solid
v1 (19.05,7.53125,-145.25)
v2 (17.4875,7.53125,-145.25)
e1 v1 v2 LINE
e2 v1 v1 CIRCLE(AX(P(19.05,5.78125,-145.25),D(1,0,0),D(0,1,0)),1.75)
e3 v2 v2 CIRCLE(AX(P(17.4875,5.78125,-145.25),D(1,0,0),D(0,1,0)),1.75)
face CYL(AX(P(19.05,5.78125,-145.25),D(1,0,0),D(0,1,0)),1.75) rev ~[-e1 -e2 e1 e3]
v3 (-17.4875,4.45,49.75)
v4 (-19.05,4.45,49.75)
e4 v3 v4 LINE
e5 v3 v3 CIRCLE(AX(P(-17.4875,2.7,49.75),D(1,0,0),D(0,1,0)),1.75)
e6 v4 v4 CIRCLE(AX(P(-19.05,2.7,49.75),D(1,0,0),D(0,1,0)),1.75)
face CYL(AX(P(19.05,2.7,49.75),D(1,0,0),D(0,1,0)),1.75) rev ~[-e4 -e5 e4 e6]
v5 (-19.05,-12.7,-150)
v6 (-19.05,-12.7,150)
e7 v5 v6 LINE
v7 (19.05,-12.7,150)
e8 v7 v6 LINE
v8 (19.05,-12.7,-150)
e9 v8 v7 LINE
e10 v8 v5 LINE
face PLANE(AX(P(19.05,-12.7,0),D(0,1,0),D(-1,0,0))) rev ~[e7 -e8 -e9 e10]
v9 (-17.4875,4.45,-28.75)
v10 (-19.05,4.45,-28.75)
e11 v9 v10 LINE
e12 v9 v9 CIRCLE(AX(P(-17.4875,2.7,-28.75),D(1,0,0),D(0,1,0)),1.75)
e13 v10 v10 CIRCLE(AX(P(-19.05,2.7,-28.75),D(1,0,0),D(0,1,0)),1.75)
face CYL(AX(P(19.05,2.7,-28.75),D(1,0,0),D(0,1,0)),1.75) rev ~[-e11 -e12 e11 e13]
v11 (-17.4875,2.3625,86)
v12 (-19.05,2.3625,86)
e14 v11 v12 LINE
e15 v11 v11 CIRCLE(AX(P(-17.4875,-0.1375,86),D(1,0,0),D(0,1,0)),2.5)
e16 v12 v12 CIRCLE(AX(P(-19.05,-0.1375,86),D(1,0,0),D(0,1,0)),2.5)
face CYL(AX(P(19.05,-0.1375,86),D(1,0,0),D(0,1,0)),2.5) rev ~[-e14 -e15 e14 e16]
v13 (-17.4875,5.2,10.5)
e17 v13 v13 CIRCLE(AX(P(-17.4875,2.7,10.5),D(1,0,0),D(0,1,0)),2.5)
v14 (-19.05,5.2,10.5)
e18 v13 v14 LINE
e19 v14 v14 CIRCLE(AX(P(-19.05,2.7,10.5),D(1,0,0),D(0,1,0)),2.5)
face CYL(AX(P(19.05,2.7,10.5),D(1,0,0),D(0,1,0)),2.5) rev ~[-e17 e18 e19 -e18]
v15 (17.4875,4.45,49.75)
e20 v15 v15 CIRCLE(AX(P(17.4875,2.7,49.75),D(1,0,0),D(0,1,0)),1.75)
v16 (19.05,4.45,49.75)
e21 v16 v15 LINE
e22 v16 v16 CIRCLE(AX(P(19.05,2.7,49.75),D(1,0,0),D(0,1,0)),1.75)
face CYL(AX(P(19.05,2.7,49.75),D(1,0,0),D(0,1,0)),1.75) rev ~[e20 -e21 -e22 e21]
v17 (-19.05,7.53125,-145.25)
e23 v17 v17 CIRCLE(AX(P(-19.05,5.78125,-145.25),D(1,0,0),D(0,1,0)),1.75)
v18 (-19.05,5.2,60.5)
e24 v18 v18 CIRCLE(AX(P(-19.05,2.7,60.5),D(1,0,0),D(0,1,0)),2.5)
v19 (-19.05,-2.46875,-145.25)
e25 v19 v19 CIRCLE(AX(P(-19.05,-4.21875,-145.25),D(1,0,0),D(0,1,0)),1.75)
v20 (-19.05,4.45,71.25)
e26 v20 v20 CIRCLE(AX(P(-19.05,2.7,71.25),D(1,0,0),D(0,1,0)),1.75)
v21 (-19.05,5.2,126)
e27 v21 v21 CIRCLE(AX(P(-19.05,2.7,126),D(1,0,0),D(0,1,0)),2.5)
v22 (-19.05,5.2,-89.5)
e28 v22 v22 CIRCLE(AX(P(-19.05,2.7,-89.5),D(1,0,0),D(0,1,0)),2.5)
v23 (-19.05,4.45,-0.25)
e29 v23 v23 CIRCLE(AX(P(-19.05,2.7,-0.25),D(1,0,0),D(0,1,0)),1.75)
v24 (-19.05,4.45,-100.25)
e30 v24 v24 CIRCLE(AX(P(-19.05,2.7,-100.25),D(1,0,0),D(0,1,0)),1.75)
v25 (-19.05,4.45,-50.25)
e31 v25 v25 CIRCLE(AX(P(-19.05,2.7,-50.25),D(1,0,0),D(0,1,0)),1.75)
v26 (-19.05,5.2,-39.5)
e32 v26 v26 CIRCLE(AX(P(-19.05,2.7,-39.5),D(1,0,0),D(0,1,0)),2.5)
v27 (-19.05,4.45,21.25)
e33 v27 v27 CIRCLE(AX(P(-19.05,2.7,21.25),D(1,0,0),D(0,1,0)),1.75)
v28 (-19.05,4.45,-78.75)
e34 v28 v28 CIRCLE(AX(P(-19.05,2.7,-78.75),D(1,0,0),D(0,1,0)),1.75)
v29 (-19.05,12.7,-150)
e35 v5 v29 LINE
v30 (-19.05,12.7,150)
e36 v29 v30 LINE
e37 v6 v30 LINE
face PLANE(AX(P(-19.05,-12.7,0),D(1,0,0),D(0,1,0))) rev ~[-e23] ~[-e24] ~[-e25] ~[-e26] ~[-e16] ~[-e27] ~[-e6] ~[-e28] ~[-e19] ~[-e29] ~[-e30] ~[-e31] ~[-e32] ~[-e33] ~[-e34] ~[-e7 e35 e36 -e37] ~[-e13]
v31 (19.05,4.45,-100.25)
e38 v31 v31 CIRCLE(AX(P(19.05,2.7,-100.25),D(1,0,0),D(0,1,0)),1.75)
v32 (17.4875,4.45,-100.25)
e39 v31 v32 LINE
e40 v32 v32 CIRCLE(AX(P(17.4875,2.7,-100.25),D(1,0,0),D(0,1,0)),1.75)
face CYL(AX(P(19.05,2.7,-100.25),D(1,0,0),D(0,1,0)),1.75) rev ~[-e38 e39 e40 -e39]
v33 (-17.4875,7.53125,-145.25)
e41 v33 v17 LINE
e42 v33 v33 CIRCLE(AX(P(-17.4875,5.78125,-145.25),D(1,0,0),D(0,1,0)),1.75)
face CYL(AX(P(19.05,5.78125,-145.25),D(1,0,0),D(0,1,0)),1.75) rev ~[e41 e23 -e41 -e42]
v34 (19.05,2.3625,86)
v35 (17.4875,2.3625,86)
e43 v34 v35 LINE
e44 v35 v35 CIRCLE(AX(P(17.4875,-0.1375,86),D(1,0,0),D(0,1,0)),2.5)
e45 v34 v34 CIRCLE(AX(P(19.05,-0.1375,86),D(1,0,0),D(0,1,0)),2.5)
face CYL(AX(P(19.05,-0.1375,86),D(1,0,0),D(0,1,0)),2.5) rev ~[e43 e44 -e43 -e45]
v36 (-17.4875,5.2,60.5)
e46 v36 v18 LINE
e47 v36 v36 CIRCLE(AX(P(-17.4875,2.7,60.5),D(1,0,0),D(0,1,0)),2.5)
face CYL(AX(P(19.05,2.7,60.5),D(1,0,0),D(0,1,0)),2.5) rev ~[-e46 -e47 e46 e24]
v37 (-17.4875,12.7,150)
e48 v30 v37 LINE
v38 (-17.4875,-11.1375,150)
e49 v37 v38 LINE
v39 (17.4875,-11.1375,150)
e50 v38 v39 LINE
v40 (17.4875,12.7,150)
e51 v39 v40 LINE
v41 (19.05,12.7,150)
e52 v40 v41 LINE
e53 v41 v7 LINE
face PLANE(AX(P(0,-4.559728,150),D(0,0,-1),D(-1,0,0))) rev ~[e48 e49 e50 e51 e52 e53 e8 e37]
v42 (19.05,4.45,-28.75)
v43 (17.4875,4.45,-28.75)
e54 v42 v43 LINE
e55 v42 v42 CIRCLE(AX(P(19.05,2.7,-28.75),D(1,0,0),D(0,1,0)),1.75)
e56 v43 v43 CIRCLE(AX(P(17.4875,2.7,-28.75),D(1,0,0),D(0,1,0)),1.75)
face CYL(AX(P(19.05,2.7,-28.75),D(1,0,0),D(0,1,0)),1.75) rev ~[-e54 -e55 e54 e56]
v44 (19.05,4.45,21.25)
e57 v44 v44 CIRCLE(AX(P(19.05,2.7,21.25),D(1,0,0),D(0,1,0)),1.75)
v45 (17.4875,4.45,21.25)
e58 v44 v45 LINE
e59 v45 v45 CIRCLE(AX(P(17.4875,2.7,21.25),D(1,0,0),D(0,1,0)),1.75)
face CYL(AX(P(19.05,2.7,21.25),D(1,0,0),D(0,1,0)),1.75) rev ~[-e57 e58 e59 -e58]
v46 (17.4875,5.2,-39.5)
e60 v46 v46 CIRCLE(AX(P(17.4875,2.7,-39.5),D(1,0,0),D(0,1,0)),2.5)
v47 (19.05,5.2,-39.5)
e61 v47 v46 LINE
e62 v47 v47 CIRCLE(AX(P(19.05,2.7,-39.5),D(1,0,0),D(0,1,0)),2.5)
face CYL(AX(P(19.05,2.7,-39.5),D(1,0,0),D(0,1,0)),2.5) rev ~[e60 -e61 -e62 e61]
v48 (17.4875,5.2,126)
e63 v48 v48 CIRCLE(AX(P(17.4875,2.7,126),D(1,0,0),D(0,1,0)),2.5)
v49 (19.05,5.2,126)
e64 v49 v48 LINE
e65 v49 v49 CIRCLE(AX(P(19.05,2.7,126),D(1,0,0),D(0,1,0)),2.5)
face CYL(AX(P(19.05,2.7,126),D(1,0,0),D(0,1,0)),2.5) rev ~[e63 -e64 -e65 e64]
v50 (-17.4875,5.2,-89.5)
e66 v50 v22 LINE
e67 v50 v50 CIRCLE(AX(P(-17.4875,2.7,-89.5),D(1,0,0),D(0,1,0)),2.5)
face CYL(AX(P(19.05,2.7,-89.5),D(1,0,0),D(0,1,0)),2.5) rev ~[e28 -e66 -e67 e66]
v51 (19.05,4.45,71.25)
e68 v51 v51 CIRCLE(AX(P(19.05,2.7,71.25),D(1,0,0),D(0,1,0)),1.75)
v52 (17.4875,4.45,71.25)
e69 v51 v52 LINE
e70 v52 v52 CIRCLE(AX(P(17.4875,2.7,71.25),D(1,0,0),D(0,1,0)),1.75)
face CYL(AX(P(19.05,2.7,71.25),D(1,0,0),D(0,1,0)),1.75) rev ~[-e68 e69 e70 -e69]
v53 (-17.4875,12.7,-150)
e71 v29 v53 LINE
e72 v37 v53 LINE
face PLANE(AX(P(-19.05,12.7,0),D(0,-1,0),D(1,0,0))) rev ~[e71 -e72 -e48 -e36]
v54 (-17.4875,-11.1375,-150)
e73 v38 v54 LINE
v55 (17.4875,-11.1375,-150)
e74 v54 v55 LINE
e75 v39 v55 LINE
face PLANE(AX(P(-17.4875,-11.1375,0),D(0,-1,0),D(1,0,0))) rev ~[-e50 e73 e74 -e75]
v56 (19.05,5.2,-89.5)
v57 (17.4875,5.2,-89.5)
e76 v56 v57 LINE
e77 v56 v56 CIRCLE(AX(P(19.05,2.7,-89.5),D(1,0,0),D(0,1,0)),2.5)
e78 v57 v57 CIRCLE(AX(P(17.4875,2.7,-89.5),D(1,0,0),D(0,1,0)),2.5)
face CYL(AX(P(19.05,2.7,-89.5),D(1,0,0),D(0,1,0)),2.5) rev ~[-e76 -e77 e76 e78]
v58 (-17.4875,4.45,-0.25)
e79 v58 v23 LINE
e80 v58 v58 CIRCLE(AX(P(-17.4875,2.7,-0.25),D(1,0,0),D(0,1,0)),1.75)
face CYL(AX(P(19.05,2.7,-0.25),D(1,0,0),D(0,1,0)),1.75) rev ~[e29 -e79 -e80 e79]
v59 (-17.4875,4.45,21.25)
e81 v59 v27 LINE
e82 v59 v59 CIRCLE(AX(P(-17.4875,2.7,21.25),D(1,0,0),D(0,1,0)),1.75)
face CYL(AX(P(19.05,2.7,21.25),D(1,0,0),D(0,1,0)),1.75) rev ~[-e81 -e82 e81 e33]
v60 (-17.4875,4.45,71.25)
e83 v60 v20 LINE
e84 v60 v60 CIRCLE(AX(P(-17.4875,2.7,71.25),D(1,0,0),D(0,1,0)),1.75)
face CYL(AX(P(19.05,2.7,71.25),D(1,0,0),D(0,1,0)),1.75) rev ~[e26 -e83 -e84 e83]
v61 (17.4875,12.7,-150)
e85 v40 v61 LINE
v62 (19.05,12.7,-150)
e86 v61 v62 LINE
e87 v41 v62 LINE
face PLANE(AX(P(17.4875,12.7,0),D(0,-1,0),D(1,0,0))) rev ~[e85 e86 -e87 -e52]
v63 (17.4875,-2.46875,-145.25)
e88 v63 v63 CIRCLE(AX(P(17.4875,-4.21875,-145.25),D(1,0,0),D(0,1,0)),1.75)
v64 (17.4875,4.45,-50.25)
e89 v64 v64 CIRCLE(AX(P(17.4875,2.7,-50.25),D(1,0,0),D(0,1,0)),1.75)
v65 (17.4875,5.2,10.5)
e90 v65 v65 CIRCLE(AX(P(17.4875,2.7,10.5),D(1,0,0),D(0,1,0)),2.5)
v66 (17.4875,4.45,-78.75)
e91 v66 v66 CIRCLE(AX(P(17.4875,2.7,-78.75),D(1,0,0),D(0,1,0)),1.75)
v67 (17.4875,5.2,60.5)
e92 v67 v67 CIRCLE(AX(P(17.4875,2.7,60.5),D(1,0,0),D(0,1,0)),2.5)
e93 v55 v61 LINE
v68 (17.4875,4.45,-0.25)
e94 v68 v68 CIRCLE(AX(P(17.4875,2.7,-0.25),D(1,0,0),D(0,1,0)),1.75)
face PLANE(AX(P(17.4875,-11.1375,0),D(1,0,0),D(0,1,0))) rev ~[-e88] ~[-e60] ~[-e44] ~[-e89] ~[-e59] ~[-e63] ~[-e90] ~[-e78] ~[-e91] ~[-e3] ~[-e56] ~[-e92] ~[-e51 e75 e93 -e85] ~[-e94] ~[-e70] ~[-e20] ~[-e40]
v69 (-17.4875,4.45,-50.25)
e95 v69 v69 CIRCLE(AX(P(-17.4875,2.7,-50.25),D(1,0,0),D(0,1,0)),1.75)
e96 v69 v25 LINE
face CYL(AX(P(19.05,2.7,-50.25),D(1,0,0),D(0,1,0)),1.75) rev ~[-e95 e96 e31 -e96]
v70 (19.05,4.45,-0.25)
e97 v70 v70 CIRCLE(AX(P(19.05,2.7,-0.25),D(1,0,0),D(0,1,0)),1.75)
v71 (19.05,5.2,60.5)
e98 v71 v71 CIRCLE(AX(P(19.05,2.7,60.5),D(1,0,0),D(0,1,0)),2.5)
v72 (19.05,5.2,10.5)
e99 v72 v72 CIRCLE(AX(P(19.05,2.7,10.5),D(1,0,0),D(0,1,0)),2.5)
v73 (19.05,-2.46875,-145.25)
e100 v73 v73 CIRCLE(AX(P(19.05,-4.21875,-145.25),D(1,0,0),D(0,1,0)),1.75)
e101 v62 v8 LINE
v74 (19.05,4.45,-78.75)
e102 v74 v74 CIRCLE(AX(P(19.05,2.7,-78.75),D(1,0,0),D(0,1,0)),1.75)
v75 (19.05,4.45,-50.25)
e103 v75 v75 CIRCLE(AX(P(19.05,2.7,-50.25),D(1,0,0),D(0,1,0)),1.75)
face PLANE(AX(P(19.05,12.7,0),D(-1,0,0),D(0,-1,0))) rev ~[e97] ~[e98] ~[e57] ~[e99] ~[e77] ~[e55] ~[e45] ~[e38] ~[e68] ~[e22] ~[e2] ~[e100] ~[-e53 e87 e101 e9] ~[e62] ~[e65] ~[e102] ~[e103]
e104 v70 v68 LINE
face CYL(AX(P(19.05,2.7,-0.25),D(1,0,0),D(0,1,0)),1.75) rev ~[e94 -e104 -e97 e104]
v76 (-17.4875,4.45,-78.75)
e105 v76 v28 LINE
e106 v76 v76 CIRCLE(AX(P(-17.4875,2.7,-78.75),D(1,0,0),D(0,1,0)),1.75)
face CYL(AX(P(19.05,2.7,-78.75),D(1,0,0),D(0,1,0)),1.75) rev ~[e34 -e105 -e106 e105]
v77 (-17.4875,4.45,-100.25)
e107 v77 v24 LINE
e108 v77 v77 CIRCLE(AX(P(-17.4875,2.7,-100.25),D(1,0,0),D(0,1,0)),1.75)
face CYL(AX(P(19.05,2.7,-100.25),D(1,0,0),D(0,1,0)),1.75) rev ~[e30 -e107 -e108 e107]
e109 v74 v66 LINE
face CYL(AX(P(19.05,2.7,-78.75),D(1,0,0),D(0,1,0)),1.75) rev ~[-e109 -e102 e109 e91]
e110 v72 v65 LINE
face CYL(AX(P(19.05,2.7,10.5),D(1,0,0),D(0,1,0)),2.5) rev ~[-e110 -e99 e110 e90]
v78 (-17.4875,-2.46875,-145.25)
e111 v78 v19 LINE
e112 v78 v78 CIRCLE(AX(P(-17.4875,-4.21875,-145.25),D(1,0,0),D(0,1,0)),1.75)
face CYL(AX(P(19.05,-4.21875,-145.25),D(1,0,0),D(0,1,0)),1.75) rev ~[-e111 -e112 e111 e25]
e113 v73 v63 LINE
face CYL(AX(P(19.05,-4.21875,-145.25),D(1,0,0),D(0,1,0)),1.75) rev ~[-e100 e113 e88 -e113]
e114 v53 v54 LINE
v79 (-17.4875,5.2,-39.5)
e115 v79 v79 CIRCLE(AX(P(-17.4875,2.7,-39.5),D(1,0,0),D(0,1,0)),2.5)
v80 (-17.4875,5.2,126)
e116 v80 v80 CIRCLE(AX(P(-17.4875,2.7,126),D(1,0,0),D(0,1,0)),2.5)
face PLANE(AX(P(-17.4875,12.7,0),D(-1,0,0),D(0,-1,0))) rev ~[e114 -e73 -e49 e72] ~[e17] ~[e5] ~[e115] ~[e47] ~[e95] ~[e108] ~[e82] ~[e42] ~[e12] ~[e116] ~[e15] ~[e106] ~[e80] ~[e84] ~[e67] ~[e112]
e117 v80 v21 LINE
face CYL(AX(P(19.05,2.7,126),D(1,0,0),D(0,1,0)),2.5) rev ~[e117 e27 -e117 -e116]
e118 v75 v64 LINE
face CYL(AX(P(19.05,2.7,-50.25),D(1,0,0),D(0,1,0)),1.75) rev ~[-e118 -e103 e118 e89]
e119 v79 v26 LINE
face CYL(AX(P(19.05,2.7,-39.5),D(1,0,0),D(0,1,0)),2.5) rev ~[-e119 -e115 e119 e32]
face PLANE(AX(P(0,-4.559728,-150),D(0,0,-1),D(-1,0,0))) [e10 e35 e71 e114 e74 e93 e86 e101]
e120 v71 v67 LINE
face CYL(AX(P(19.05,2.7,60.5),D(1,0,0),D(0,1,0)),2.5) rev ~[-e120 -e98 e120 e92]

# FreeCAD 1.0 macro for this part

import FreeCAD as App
import Part
import Sketcher
from FreeCAD import Vector


def add_polygon(sketch, points):
    """Adds a closed chain of lines whose ends are joined by coincident constraints."""
    first, n = sketch.GeometryCount, len(points)
    for a, b in zip(points, points[1:] + points[:1]):
        sketch.addGeometry(Part.LineSegment(App.Vector(*a, 0), App.Vector(*b, 0)), False)
    for i in range(n):
        sketch.addConstraint(Sketcher.Constraint("Coincident", first + i, 2, first + (i + 1) % n, 1))

doc = App.newDocument("Part")
params = doc.addObject("Spreadsheet::Sheet", "Params")
for row, (alias, value) in enumerate([
    ("sketch1_width", "38.1 mm"),
    ("sketch1_height", "25.4 mm"),
    ("pad1_length", "300 mm"),
    ("sketch2_diameter", "5 mm"),
    ("sketch2_diameter2", "3.5 mm"),
], start=1):
    params.set(f"A{row}", alias)
    params.set(f"B{row}", "=" + value)
    params.setAlias(f"B{row}", alias)

body = doc.addObject("PartDesign::Body", "Body")

sketch1 = doc.addObject("Sketcher::SketchObject", "Sketch")
body.addObject(sketch1)
sketch1.AttachmentSupport = (doc.XY_Plane, [""])
sketch1.MapMode = "FlatFace"
add_polygon(sketch1, [(-17.5, 12.7), (-19.1, 12.7), (-19.1, -12.7), (19.1, -12.7), (19.1, 12.7), (17.5, 12.7), (17.5, -11.1), (-17.5, -11.1)])
sketch1.addConstraint(Sketcher.Constraint("Horizontal", 0))
sketch1.addConstraint(Sketcher.Constraint("Vertical", 1))
sketch1.addConstraint(Sketcher.Constraint("Horizontal", 2))
sketch1.addConstraint(Sketcher.Constraint("Vertical", 3))
sketch1.addConstraint(Sketcher.Constraint("Horizontal", 4))
sketch1.addConstraint(Sketcher.Constraint("Vertical", 5))
sketch1.addConstraint(Sketcher.Constraint("Horizontal", 6))
sketch1.addConstraint(Sketcher.Constraint("Vertical", 7))
sketch1.addConstraint(Sketcher.Constraint("Symmetric", 0, 2, 2, 2, -1, 1))
sketch1.addConstraint(Sketcher.Constraint("Symmetric", 4, 2, 7, 2, -2))
sketch1.addConstraint(Sketcher.Constraint("DistanceX", 2, 1, 2, 2, 38.1))
sketch1.addConstraint(Sketcher.Constraint("DistanceY", 1, 2, 1, 1, 25.4))
sketch1.addConstraint(Sketcher.Constraint("DistanceX", 6, 2, 6, 1, 34.975))
sketch1.addConstraint(Sketcher.Constraint("DistanceY", 5, 2, 5, 1, 23.8375))
sketch1.setExpression("Constraints[18]", "Params.sketch1_width")
sketch1.setExpression("Constraints[19]", "Params.sketch1_height")
pad1 = doc.addObject("PartDesign::Pad", "Pad")
body.addObject(pad1)
pad1.Profile = sketch1
pad1.setExpression("Length", "Params.pad1_length")
pad1.Midplane = True

sketch2 = doc.addObject("Sketcher::SketchObject", "Sketch001")
body.addObject(sketch2)
sketch2.AttachmentSupport = (doc.YZ_Plane, [""])
sketch2.MapMode = "FlatFace"
sketch2.AttachmentOffset = App.Placement(Vector(0, 0, 19.05), App.Rotation())
sketch2.addGeometry(Part.Circle(Vector(5.8, -145.2, 0), Vector(0, 0, 1), 1.8), False)
sketch2.addGeometry(Part.Circle(Vector(-4.2, -145.2, 0), Vector(0, 0, 1), 1.8), False)
sketch2.addGeometry(Part.Circle(Vector(-0.1, 86, 0), Vector(0, 0, 1), 2.5), False)
sketch2.addGeometry(Part.Circle(Vector(2.7, 126, 0), Vector(0, 0, 1), 2.5), False)
sketch2.addGeometry(Part.Circle(Vector(2.7, 60.5, 0), Vector(0, 0, 1), 2.5), False)
sketch2.addGeometry(Part.Circle(Vector(2.7, 71.2, 0), Vector(0, 0, 1), 1.8), False)
sketch2.addGeometry(Part.Circle(Vector(2.7, 49.8, 0), Vector(0, 0, 1), 1.8), False)
sketch2.addGeometry(Part.Circle(Vector(2.7, 21.2, 0), Vector(0, 0, 1), 1.8), False)
sketch2.addGeometry(Part.Circle(Vector(2.7, 10.5, 0), Vector(0, 0, 1), 2.5), False)
sketch2.addGeometry(Part.Circle(Vector(2.7, -0.2, 0), Vector(0, 0, 1), 1.8), False)
sketch2.addGeometry(Part.Circle(Vector(2.7, -28.8, 0), Vector(0, 0, 1), 1.8), False)
sketch2.addGeometry(Part.Circle(Vector(2.7, -39.5, 0), Vector(0, 0, 1), 2.5), False)
sketch2.addGeometry(Part.Circle(Vector(2.7, -50.2, 0), Vector(0, 0, 1), 1.8), False)
sketch2.addGeometry(Part.Circle(Vector(2.7, -78.8, 0), Vector(0, 0, 1), 1.8), False)
sketch2.addGeometry(Part.Circle(Vector(2.7, -89.5, 0), Vector(0, 0, 1), 2.5), False)
sketch2.addGeometry(Part.Circle(Vector(2.7, -100.2, 0), Vector(0, 0, 1), 1.8), False)
sketch2.addConstraint(Sketcher.Constraint("Equal", 0, 1))
sketch2.addConstraint(Sketcher.Constraint("Equal", 2, 3))
sketch2.addConstraint(Sketcher.Constraint("Equal", 3, 4))
sketch2.addConstraint(Sketcher.Constraint("Equal", 1, 5))
sketch2.addConstraint(Sketcher.Constraint("Equal", 5, 6))
sketch2.addConstraint(Sketcher.Constraint("Equal", 6, 7))
sketch2.addConstraint(Sketcher.Constraint("Equal", 4, 8))
sketch2.addConstraint(Sketcher.Constraint("Equal", 7, 9))
sketch2.addConstraint(Sketcher.Constraint("Equal", 9, 10))
sketch2.addConstraint(Sketcher.Constraint("Equal", 8, 11))
sketch2.addConstraint(Sketcher.Constraint("Equal", 10, 12))
sketch2.addConstraint(Sketcher.Constraint("Equal", 12, 13))
sketch2.addConstraint(Sketcher.Constraint("Equal", 11, 14))
sketch2.addConstraint(Sketcher.Constraint("Equal", 13, 15))
sketch2.addConstraint(Sketcher.Constraint("Horizontal", 0, 3, 1, 3))
sketch2.addConstraint(Sketcher.Constraint("Vertical", 3, 3, 4, 3))
sketch2.addConstraint(Sketcher.Constraint("Vertical", 4, 3, 5, 3))
sketch2.addConstraint(Sketcher.Constraint("Vertical", 5, 3, 6, 3))
sketch2.addConstraint(Sketcher.Constraint("Vertical", 6, 3, 7, 3))
sketch2.addConstraint(Sketcher.Constraint("Vertical", 7, 3, 8, 3))
sketch2.addConstraint(Sketcher.Constraint("Vertical", 8, 3, 9, 3))
sketch2.addConstraint(Sketcher.Constraint("Vertical", 9, 3, 10, 3))
sketch2.addConstraint(Sketcher.Constraint("Vertical", 10, 3, 11, 3))
sketch2.addConstraint(Sketcher.Constraint("Vertical", 11, 3, 12, 3))
sketch2.addConstraint(Sketcher.Constraint("Vertical", 12, 3, 13, 3))
sketch2.addConstraint(Sketcher.Constraint("Vertical", 13, 3, 14, 3))
sketch2.addConstraint(Sketcher.Constraint("Vertical", 14, 3, 15, 3))
sketch2.addConstraint(Sketcher.Constraint("Diameter", 2, 5.0))
sketch2.addConstraint(Sketcher.Constraint("Diameter", 0, 3.5))
sketch2.addConstraint(Sketcher.Constraint("DistanceY", -1, 1, 2, 3, 86.0))
sketch2.addConstraint(Sketcher.Constraint("DistanceY", -1, 1, 3, 3, 126.0))
sketch2.addConstraint(Sketcher.Constraint("DistanceX", 1, 3, 0, 3, 10.0))
sketch2.addConstraint(Sketcher.Constraint("DistanceY", 0, 3, 6, 3, 195.0))
sketch2.addConstraint(Sketcher.Constraint("DistanceY", 7, 3, 5, 3, 50.0))
sketch2.addConstraint(Sketcher.Constraint("DistanceY", 8, 3, 4, 3, 50.0))
sketch2.addConstraint(Sketcher.Constraint("DistanceY", 9, 3, 6, 3, 50.0))
sketch2.addConstraint(Sketcher.Constraint("DistanceY", 10, 3, 7, 3, 50.0))
sketch2.addConstraint(Sketcher.Constraint("DistanceY", 11, 3, 8, 3, 50.0))
sketch2.addConstraint(Sketcher.Constraint("DistanceY", 12, 3, 9, 3, 50.0))
sketch2.addConstraint(Sketcher.Constraint("DistanceY", 13, 3, 10, 3, 50.0))
sketch2.addConstraint(Sketcher.Constraint("DistanceY", 14, 3, 11, 3, 50.0))
sketch2.addConstraint(Sketcher.Constraint("DistanceY", 0, 3, 15, 3, 45.0))
sketch2.addConstraint(Sketcher.Constraint("DistanceX", -1, 1, 3, 3, 2.7))
sketch2.addConstraint(Sketcher.Constraint("DistanceY", -1, 1, 4, 3, 60.5))
sketch2.addConstraint(Sketcher.Constraint("DistanceY", 0, 3, 5, 3, 216.5))
sketch2.addConstraint(Sketcher.Constraint("DistanceY", 0, 3, -1, 1, 145.25))
sketch2.addConstraint(Sketcher.Constraint("DistanceX", 2, 3, -1, 1, 0.1375))
sketch2.addConstraint(Sketcher.Constraint("DistanceX", -1, 1, 0, 3, 5.78125))
sketch2.setExpression("Constraints[27]", "Params.sketch2_diameter")
sketch2.setExpression("Constraints[28]", "Params.sketch2_diameter2")
pocket1 = doc.addObject("PartDesign::Pocket", "Pocket")
body.addObject(pocket1)
pocket1.Profile = sketch2
pocket1.Type = "ThroughAll"

doc.recompute()
